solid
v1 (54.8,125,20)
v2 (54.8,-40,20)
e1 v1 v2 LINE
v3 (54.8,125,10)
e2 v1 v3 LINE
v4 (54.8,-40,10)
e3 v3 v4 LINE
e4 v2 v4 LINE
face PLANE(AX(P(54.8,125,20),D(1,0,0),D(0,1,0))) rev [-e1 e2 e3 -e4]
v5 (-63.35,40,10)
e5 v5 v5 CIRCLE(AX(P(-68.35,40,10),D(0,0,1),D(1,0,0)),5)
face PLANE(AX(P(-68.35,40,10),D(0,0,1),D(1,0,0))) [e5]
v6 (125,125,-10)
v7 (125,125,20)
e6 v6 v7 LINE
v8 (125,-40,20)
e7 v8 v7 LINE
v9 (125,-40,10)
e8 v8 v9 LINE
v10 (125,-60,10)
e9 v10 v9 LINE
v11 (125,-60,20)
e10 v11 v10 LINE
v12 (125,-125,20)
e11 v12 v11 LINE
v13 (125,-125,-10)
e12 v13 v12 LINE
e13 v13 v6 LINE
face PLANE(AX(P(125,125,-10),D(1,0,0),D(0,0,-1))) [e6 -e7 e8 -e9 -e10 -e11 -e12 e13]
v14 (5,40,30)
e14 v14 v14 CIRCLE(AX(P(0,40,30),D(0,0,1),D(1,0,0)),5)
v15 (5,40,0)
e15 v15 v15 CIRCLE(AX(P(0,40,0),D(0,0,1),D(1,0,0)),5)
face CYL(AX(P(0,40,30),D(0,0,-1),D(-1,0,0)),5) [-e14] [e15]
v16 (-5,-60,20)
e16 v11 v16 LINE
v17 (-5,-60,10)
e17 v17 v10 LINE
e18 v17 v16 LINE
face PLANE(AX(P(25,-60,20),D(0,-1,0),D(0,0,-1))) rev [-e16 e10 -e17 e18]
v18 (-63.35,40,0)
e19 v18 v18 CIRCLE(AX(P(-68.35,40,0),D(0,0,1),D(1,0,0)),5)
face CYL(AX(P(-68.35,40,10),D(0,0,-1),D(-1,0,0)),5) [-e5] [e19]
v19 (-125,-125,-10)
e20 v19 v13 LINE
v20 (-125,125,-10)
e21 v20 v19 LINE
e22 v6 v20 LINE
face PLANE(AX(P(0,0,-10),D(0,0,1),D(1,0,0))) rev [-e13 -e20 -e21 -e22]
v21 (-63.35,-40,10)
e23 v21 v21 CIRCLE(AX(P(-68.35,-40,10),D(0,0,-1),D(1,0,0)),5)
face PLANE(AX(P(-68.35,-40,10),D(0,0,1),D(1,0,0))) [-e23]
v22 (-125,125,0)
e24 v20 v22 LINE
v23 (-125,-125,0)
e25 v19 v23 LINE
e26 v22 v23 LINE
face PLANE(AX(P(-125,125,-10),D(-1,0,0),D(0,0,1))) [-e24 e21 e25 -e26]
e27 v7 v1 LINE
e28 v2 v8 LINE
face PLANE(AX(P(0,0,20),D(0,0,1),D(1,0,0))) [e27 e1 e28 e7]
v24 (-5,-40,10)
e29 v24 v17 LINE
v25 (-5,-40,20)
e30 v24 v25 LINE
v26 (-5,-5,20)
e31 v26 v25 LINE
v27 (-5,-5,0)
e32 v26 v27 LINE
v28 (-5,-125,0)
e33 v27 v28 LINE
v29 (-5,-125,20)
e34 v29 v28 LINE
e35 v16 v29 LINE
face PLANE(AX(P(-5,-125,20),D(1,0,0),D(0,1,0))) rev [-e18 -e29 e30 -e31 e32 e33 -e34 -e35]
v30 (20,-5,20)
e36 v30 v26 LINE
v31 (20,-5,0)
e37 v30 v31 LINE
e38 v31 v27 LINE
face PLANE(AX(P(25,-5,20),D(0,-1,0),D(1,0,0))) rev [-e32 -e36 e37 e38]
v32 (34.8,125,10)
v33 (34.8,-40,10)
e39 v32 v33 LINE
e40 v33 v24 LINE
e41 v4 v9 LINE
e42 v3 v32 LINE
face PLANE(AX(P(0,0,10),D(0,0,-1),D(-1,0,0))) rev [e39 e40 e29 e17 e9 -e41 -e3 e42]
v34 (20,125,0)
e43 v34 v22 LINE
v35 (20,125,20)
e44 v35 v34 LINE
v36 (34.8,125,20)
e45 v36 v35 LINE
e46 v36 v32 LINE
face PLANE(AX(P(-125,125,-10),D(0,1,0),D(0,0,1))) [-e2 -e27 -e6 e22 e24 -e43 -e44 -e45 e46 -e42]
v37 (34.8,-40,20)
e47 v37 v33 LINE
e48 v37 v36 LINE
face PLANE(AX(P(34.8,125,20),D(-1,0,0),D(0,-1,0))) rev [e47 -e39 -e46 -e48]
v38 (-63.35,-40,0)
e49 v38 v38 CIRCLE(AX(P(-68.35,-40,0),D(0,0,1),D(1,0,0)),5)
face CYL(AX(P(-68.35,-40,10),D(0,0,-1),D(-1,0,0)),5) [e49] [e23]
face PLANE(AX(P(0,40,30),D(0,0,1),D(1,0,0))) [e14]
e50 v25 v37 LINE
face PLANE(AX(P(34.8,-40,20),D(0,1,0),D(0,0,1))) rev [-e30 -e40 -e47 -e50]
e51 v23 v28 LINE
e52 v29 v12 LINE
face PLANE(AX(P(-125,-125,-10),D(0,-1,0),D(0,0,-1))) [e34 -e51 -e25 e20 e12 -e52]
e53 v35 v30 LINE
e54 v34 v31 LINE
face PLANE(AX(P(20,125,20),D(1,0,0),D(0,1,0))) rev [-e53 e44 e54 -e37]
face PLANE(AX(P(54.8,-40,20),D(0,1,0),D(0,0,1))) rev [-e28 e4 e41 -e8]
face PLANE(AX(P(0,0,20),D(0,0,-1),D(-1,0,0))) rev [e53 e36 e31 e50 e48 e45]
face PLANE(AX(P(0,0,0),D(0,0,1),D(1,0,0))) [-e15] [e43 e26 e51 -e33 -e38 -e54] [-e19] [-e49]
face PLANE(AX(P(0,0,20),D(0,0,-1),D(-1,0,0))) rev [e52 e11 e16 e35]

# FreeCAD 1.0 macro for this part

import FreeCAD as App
import Part
import Sketcher

V = App.Vector

doc = App.newDocument("Part")
body = doc.addObject("PartDesign::Body", "Body")

# Sketch on XY plane
sketch1 = body.newObject("Sketcher::SketchObject", "Sketch")
sketch1.AttachmentSupport = (doc.getObject("XY_Plane"), [""])
sketch1.MapMode = "FlatFace"
sketch1.addGeometry(Part.LineSegment(V(-125, 125, 0), V(-125, -125, 0)), False)
sketch1.addGeometry(Part.LineSegment(V(-125, -125, 0), V(125, -125, 0)), False)
sketch1.addGeometry(Part.LineSegment(V(125, -125, 0), V(125, 125, 0)), False)
sketch1.addGeometry(Part.LineSegment(V(125, 125, 0), V(-125, 125, 0)), False)
sketch1.addConstraint(Sketcher.Constraint("Coincident", 0, 2, 1, 1))
sketch1.addConstraint(Sketcher.Constraint("Coincident", 1, 2, 2, 1))
sketch1.addConstraint(Sketcher.Constraint("Coincident", 2, 2, 3, 1))
sketch1.addConstraint(Sketcher.Constraint("Coincident", 3, 2, 0, 1))
sketch1.addConstraint(Sketcher.Constraint("Vertical", 0))
sketch1.addConstraint(Sketcher.Constraint("Horizontal", 1))
sketch1.addConstraint(Sketcher.Constraint("Vertical", 2))
sketch1.addConstraint(Sketcher.Constraint("Horizontal", 3))
sketch1.addConstraint(Sketcher.Constraint("Symmetric", 0, 2, 2, 2, -1, 1))
sketch1.addConstraint(Sketcher.Constraint("Equal", 3, 0))
sketch1.addConstraint(Sketcher.Constraint("DistanceX", 1, 1, 1, 2, 250.0))
pad1 = body.newObject("PartDesign::Pad", "Pad")
pad1.Profile = sketch1
pad1.Length = 10
pad1.Reversed = True

# Sketch on XY plane
sketch2 = body.newObject("Sketcher::SketchObject", "Sketch001")
sketch2.AttachmentSupport = (doc.getObject("XY_Plane"), [""])
sketch2.MapMode = "FlatFace"
sketch2.addGeometry(Part.Circle(V(-68, 40, 0), V(0, 0, 1), 5), False)
sketch2.addConstraint(Sketcher.Constraint("Diameter", 0, 10.0))
sketch2.addConstraint(Sketcher.Constraint("DistanceY", -1, 1, 0, 3, 40.0))
sketch2.addConstraint(Sketcher.Constraint("DistanceX", 0, 3, -1, 1, 68.35))
pad2 = body.newObject("PartDesign::Pad", "Pad001")
pad2.Profile = sketch2
pad2.Length = 10
doc.recompute()

mirrored = body.newObject("PartDesign::Mirrored", "Mirrored")
mirrored.Originals = [pad2]
mirrored.MirrorPlane = (doc.getObject("XZ_Plane"), [""])
body.Tip = mirrored

# Sketch on XY plane
sketch3 = body.newObject("Sketcher::SketchObject", "Sketch002")
sketch3.AttachmentSupport = (doc.getObject("XY_Plane"), [""])
sketch3.MapMode = "FlatFace"
sketch3.addGeometry(Part.Circle(V(0, 40, 0), V(0, 0, 1), 5), False)
sketch3.addConstraint(Sketcher.Constraint("PointOnObject", 0, 3, -2))
sketch3.addConstraint(Sketcher.Constraint("Diameter", 0, 10.0))
sketch3.addConstraint(Sketcher.Constraint("DistanceY", -1, 1, 0, 3, 40.0))
pad3 = body.newObject("PartDesign::Pad", "Pad002")
pad3.Profile = sketch3
pad3.Length = 30

# Sketch on XY plane
sketch4 = body.newObject("Sketcher::SketchObject", "Sketch003")
sketch4.AttachmentSupport = (doc.getObject("XY_Plane"), [""])
sketch4.MapMode = "FlatFace"
sketch4.addGeometry(Part.LineSegment(V(20, 125, 0), V(20, -40, 0)), False)
sketch4.addGeometry(Part.LineSegment(V(20, -40, 0), V(35, -40, 0)), False)
sketch4.addGeometry(Part.LineSegment(V(35, -40, 0), V(35, 125, 0)), False)
sketch4.addGeometry(Part.LineSegment(V(35, 125, 0), V(20, 125, 0)), False)
sketch4.addConstraint(Sketcher.Constraint("Coincident", 0, 2, 1, 1))
sketch4.addConstraint(Sketcher.Constraint("Coincident", 1, 2, 2, 1))
sketch4.addConstraint(Sketcher.Constraint("Coincident", 2, 2, 3, 1))
sketch4.addConstraint(Sketcher.Constraint("Coincident", 3, 2, 0, 1))
sketch4.addConstraint(Sketcher.Constraint("Vertical", 0))
sketch4.addConstraint(Sketcher.Constraint("Horizontal", 1))
sketch4.addConstraint(Sketcher.Constraint("Vertical", 2))
sketch4.addConstraint(Sketcher.Constraint("Horizontal", 3))
sketch4.addConstraint(Sketcher.Constraint("DistanceY", 0, 2, 0, 1, 165.0))
sketch4.addConstraint(Sketcher.Constraint("DistanceX", 1, 1, 1, 2, 14.8))
sketch4.addConstraint(Sketcher.Constraint("DistanceX", -1, 1, 0, 2, 20.0))
sketch4.addConstraint(Sketcher.Constraint("DistanceY", 0, 2, -1, 1, 40.0))
pad4 = body.newObject("PartDesign::Pad", "Pad003")
pad4.Profile = sketch4
pad4.Length = 20

# Sketch on XY plane
sketch5 = body.newObject("Sketcher::SketchObject", "Sketch004")
sketch5.AttachmentSupport = (doc.getObject("XY_Plane"), [""])
sketch5.MapMode = "FlatFace"
sketch5.addGeometry(Part.LineSegment(V(25, -60, 0), V(25, -125, 0)), False)
sketch5.addGeometry(Part.LineSegment(V(25, -125, 0), V(125, -125, 0)), False)
sketch5.addGeometry(Part.LineSegment(V(125, -125, 0), V(125, -60, 0)), False)
sketch5.addGeometry(Part.LineSegment(V(125, -60, 0), V(25, -60, 0)), False)
sketch5.addConstraint(Sketcher.Constraint("Coincident", 0, 2, 1, 1))
sketch5.addConstraint(Sketcher.Constraint("Coincident", 1, 2, 2, 1))
sketch5.addConstraint(Sketcher.Constraint("Coincident", 2, 2, 3, 1))
sketch5.addConstraint(Sketcher.Constraint("Coincident", 3, 2, 0, 1))
sketch5.addConstraint(Sketcher.Constraint("Vertical", 0))
sketch5.addConstraint(Sketcher.Constraint("Horizontal", 1))
sketch5.addConstraint(Sketcher.Constraint("Vertical", 2))
sketch5.addConstraint(Sketcher.Constraint("Horizontal", 3))
sketch5.addConstraint(Sketcher.Constraint("DistanceX", 1, 1, 1, 2, 100.0))
sketch5.addConstraint(Sketcher.Constraint("DistanceY", 0, 2, 0, 1, 65.0))
sketch5.addConstraint(Sketcher.Constraint("DistanceX", -1, 1, 0, 2, 25.0))
sketch5.addConstraint(Sketcher.Constraint("DistanceY", 0, 2, -1, 1, 125.0))
pad5 = body.newObject("PartDesign::Pad", "Pad004")
pad5.Profile = sketch5
pad5.Length = 20

# Sketch on XY plane
sketch6 = body.newObject("Sketcher::SketchObject", "Sketch005")
sketch6.AttachmentSupport = (doc.getObject("XY_Plane"), [""])
sketch6.MapMode = "FlatFace"
sketch6.addGeometry(Part.LineSegment(V(25, 125, 0), V(25, -125, 0)), False)
sketch6.addGeometry(Part.LineSegment(V(25, -125, 0), V(125, -125, 0)), False)
sketch6.addGeometry(Part.LineSegment(V(125, -125, 0), V(125, 125, 0)), False)
sketch6.addGeometry(Part.LineSegment(V(125, 125, 0), V(25, 125, 0)), False)
sketch6.addConstraint(Sketcher.Constraint("Coincident", 0, 2, 1, 1))
sketch6.addConstraint(Sketcher.Constraint("Coincident", 1, 2, 2, 1))
sketch6.addConstraint(Sketcher.Constraint("Coincident", 2, 2, 3, 1))
sketch6.addConstraint(Sketcher.Constraint("Coincident", 3, 2, 0, 1))
sketch6.addConstraint(Sketcher.Constraint("Vertical", 0))
sketch6.addConstraint(Sketcher.Constraint("Horizontal", 1))
sketch6.addConstraint(Sketcher.Constraint("Vertical", 2))
sketch6.addConstraint(Sketcher.Constraint("Horizontal", 3))
sketch6.addConstraint(Sketcher.Constraint("DistanceX", 1, 1, 1, 2, 100.0))
sketch6.addConstraint(Sketcher.Constraint("DistanceY", 0, 2, 0, 1, 250.0))
sketch6.addConstraint(Sketcher.Constraint("DistanceX", -1, 1, 0, 2, 25.0))
sketch6.addConstraint(Sketcher.Constraint("DistanceY", 0, 2, -1, 1, 125.0))
pad6 = body.newObject("PartDesign::Pad", "Pad005")
pad6.Profile = sketch6
pad6.Length = 10

# Sketch on XY plane
sketch7 = body.newObject("Sketcher::SketchObject", "Sketch006")
sketch7.AttachmentSupport = (doc.getObject("XY_Plane"), [""])
sketch7.MapMode = "FlatFace"
sketch7.AttachmentOffset = App.Placement(V(0, 0, 10), App.Rotation())
sketch7.addGeometry(Part.LineSegment(V(55, 125, 0), V(55, -40, 0)), False)
sketch7.addGeometry(Part.LineSegment(V(55, -40, 0), V(125, -40, 0)), False)
sketch7.addGeometry(Part.LineSegment(V(125, -40, 0), V(125, 125, 0)), False)
sketch7.addGeometry(Part.LineSegment(V(125, 125, 0), V(55, 125, 0)), False)
sketch7.addConstraint(Sketcher.Constraint("Coincident", 0, 2, 1, 1))
sketch7.addConstraint(Sketcher.Constraint("Coincident", 1, 2, 2, 1))
sketch7.addConstraint(Sketcher.Constraint("Coincident", 2, 2, 3, 1))
sketch7.addConstraint(Sketcher.Constraint("Coincident", 3, 2, 0, 1))
sketch7.addConstraint(Sketcher.Constraint("Vertical", 0))
sketch7.addConstraint(Sketcher.Constraint("Horizontal", 1))
sketch7.addConstraint(Sketcher.Constraint("Vertical", 2))
sketch7.addConstraint(Sketcher.Constraint("Horizontal", 3))
sketch7.addConstraint(Sketcher.Constraint("DistanceY", 0, 2, 0, 1, 165.0))
sketch7.addConstraint(Sketcher.Constraint("DistanceX", 1, 1, 1, 2, 70.2))
sketch7.addConstraint(Sketcher.Constraint("DistanceY", 0, 2, -1, 1, 40.0))
sketch7.addConstraint(Sketcher.Constraint("DistanceX", -1, 1, 1, 2, 125.0))
pad7 = body.newObject("PartDesign::Pad", "Pad006")
pad7.Profile = sketch7
pad7.Length = 10

# Sketch on XY plane
sketch8 = body.newObject("Sketcher::SketchObject", "Sketch007")
sketch8.AttachmentSupport = (doc.getObject("XY_Plane"), [""])
sketch8.MapMode = "FlatFace"
sketch8.addGeometry(Part.LineSegment(V(-5, -5, 0), V(-5, -125, 0)), False)
sketch8.addGeometry(Part.LineSegment(V(-5, -125, 0), V(25, -125, 0)), False)
sketch8.addGeometry(Part.LineSegment(V(25, -125, 0), V(25, -5, 0)), False)
sketch8.addGeometry(Part.LineSegment(V(25, -5, 0), V(-5, -5, 0)), False)
sketch8.addConstraint(Sketcher.Constraint("Coincident", 0, 2, 1, 1))
sketch8.addConstraint(Sketcher.Constraint("Coincident", 1, 2, 2, 1))
sketch8.addConstraint(Sketcher.Constraint("Coincident", 2, 2, 3, 1))
sketch8.addConstraint(Sketcher.Constraint("Coincident", 3, 2, 0, 1))
sketch8.addConstraint(Sketcher.Constraint("Vertical", 0))
sketch8.addConstraint(Sketcher.Constraint("Horizontal", 1))
sketch8.addConstraint(Sketcher.Constraint("Vertical", 2))
sketch8.addConstraint(Sketcher.Constraint("Horizontal", 3))
sketch8.addConstraint(Sketcher.Constraint("DistanceX", 1, 1, 1, 2, 30.0))
sketch8.addConstraint(Sketcher.Constraint("DistanceY", 0, 2, 0, 1, 120.0))
sketch8.addConstraint(Sketcher.Constraint("DistanceX", 0, 2, -1, 1, 5.0))
sketch8.addConstraint(Sketcher.Constraint("DistanceY", 0, 2, -1, 1, 125.0))
pad8 = body.newObject("PartDesign::Pad", "Pad007")
pad8.Profile = sketch8
pad8.Length = 20

# Sketch on XY plane
sketch9 = body.newObject("Sketcher::SketchObject", "Sketch008")
sketch9.AttachmentSupport = (doc.getObject("XY_Plane"), [""])
sketch9.MapMode = "FlatFace"
sketch9.AttachmentOffset = App.Placement(V(0, 0, 20), App.Rotation())
sketch9.addGeometry(Part.LineSegment(V(-5, -40, 0), V(-5, -60, 0)), False)
sketch9.addGeometry(Part.LineSegment(V(-5, -60, 0), V(25, -60, 0)), False)
sketch9.addGeometry(Part.LineSegment(V(25, -60, 0), V(25, -40, 0)), False)
sketch9.addGeometry(Part.LineSegment(V(25, -40, 0), V(-5, -40, 0)), False)
sketch9.addConstraint(Sketcher.Constraint("Coincident", 0, 2, 1, 1))
sketch9.addConstraint(Sketcher.Constraint("Coincident", 1, 2, 2, 1))
sketch9.addConstraint(Sketcher.Constraint("Coincident", 2, 2, 3, 1))
sketch9.addConstraint(Sketcher.Constraint("Coincident", 3, 2, 0, 1))
sketch9.addConstraint(Sketcher.Constraint("Vertical", 0))
sketch9.addConstraint(Sketcher.Constraint("Horizontal", 1))
sketch9.addConstraint(Sketcher.Constraint("Vertical", 2))
sketch9.addConstraint(Sketcher.Constraint("Horizontal", 3))
sketch9.addConstraint(Sketcher.Constraint("DistanceX", 1, 1, 1, 2, 30.0))
sketch9.addConstraint(Sketcher.Constraint("DistanceY", 0, 2, 0, 1, 20.0))
sketch9.addConstraint(Sketcher.Constraint("DistanceX", 0, 2, -1, 1, 5.0))
sketch9.addConstraint(Sketcher.Constraint("DistanceY", 0, 2, -1, 1, 60.0))
pocket1 = body.newObject("PartDesign::Pocket", "Pocket")
pocket1.Profile = sketch9
pocket1.Length = 10

doc.recompute()
